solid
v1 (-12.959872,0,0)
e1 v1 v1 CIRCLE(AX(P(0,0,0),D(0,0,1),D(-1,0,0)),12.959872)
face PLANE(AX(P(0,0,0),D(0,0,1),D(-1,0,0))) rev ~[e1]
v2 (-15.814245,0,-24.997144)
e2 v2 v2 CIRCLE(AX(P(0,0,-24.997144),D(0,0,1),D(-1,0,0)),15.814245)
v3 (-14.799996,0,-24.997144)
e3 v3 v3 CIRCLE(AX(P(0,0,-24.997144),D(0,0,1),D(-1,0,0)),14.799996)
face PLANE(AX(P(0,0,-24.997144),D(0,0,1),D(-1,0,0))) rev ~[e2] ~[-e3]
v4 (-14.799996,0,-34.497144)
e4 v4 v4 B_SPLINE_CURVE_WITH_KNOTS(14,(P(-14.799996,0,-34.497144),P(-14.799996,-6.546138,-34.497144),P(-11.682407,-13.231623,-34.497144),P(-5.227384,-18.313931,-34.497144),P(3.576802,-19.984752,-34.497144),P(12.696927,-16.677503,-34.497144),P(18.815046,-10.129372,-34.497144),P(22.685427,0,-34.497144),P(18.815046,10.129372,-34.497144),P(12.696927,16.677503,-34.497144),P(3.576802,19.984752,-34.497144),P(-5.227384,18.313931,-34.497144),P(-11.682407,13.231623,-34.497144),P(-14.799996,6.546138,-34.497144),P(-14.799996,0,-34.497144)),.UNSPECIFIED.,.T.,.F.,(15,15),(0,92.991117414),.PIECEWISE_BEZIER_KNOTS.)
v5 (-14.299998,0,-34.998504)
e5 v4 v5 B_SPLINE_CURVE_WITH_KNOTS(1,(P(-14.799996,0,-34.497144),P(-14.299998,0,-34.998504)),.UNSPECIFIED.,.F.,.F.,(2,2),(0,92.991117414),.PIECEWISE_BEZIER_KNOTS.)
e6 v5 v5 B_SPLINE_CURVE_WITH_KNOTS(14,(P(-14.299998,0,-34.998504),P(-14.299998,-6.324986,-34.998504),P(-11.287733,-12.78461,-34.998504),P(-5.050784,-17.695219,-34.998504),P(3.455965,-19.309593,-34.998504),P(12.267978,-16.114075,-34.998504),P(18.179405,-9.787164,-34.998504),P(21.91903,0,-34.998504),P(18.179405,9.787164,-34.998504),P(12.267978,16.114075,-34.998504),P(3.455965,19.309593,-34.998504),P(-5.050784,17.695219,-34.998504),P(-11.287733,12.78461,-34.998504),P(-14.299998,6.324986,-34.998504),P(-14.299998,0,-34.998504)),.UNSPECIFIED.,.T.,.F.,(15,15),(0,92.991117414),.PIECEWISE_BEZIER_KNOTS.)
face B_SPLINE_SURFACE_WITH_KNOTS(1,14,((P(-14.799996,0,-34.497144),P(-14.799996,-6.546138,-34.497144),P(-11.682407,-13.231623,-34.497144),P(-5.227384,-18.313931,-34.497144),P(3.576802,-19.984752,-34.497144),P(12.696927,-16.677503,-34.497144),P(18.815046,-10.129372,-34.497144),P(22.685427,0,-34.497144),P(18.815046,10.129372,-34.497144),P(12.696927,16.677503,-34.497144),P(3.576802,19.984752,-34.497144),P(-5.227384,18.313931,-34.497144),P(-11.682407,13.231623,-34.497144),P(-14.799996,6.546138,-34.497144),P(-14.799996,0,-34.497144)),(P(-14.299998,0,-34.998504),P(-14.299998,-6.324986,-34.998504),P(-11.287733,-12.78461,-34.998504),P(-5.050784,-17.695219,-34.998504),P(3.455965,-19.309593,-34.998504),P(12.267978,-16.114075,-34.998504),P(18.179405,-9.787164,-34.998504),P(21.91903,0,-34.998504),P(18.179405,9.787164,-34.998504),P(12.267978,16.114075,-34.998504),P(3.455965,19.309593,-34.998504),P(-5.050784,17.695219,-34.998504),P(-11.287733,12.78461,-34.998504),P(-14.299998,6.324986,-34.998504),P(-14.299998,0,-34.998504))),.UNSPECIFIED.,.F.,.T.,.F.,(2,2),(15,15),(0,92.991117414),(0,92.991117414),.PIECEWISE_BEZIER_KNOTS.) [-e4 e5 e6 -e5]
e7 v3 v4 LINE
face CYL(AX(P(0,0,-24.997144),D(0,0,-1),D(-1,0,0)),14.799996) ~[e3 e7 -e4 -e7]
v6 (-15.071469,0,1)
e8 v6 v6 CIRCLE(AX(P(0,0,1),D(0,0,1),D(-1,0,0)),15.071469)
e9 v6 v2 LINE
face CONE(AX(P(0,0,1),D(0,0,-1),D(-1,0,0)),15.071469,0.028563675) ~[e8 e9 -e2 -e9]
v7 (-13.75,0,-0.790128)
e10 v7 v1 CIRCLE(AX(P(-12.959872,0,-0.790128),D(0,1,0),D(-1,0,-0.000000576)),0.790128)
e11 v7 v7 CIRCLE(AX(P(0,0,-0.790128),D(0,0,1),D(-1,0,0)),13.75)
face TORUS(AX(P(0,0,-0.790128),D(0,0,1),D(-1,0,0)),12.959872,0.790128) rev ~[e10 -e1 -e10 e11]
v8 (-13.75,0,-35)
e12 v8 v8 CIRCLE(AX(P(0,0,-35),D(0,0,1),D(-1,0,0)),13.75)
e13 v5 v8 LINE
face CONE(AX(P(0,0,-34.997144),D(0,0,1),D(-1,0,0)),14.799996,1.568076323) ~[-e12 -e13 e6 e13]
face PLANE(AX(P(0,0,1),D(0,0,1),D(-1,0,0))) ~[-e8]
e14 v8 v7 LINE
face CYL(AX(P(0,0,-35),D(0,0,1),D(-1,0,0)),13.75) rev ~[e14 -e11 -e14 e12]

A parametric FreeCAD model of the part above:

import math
import FreeCAD as App
import Part
import Sketcher


def edges_at(feature, points):
    """Names of the edges that pass closest to the given points."""
    edges = feature.Shape.Edges
    near = lambda p: min(range(len(edges)), key=lambda i: edges[i].distToShape(Part.Vertex(*p))[0])
    return sorted({f"Edge{near(p) + 1}" for p in points})

doc = App.newDocument("Part")
body = doc.addObject("PartDesign::Body", "Body")

sketch1 = doc.addObject("Sketcher::SketchObject", "Sketch")
body.addObject(sketch1)
sketch1.AttachmentSupport = (doc.XZ_Plane, [""])
sketch1.MapMode = "FlatFace"
sketch1.addGeometry([
    Part.LineSegment(App.Vector(-12.959872, 0, 0), App.Vector(0, 0, 0)),
    Part.LineSegment(App.Vector(0, 0, 0), App.Vector(0, 1, 0)),
    Part.LineSegment(App.Vector(0, 1, 0), App.Vector(-15.071469, 1, 0)),
    Part.LineSegment(App.Vector(-15.071469, 1, 0), App.Vector(-15.814245, -24.997144, 0)),
    Part.LineSegment(App.Vector(-15.814245, -24.997144, 0), App.Vector(-14.799996, -24.997144, 0)),
    Part.LineSegment(App.Vector(-14.799996, -24.997144, 0), App.Vector(-14.799996, -34.997144, 0)),
    Part.LineSegment(App.Vector(-14.799996, -34.997144, 0), App.Vector(-13.75, -35, 0)),
    Part.LineSegment(App.Vector(-13.75, -35, 0), App.Vector(-13.75, -0.790128, 0)),
    Part.ArcOfCircle(Part.Circle(App.Vector(-12.959872, -0.790128, 0), App.Vector(0, 0, 1), 0.790128), math.radians(89.999967), math.radians(180.000033)),
], False)
sketch1.addConstraint([
    Sketcher.Constraint("Coincident", 0, 2, 1, 1),
    Sketcher.Constraint("Coincident", 1, 2, 2, 1),
    Sketcher.Constraint("Coincident", 2, 2, 3, 1),
    Sketcher.Constraint("Coincident", 3, 2, 4, 1),
    Sketcher.Constraint("Coincident", 4, 2, 5, 1),
    Sketcher.Constraint("Coincident", 5, 2, 6, 1),
    Sketcher.Constraint("Coincident", 6, 2, 7, 1),
    Sketcher.Constraint("Tangent", 7, 2, 8, 2),
    Sketcher.Constraint("Tangent", 8, 1, 0, 1),
    Sketcher.Constraint("Horizontal", 0),
    Sketcher.Constraint("Vertical", 1),
    Sketcher.Constraint("Horizontal", 2),
    Sketcher.Constraint("Horizontal", 4),
    Sketcher.Constraint("Vertical", 5),
    Sketcher.Constraint("Vertical", 7),
    Sketcher.Constraint("Coincident", 0, 2, -1, 1),
    Sketcher.Constraint("DistanceY", 1, 1, 1, 2, 1.0),
    Sketcher.Constraint("DistanceY", 5, 2, 5, 1, 10.0),
    Sketcher.Constraint("DistanceY", 6, 2, -1, 1, 35.0),
    Sketcher.Constraint("Distance", 6, 1.05),
    Sketcher.Constraint("DistanceX", 6, 2, -1, 1, 13.75),
    Sketcher.Constraint("Radius", 8, 0.790128),
    Sketcher.Constraint("DistanceX", 2, 2, 2, 1, 15.071469),
    Sketcher.Constraint("DistanceX", 4, 1, 4, 2, 1.014249),
    Sketcher.Constraint("Distance", 3, 26.007753),
])
revolution = doc.addObject("PartDesign::Revolution", "Revolution")
body.addObject(revolution)
revolution.Profile = sketch1
revolution.ReferenceAxis = (sketch1, ["V_Axis"])
revolution.Angle = 360
doc.recompute()

chamfer = doc.addObject("PartDesign::Chamfer", "Chamfer")
body.addObject(chamfer)
chamfer.Base = (revolution, edges_at(revolution, [(14.8, 0, -34.997)]))
chamfer.Size = 0.5

doc.recompute()
